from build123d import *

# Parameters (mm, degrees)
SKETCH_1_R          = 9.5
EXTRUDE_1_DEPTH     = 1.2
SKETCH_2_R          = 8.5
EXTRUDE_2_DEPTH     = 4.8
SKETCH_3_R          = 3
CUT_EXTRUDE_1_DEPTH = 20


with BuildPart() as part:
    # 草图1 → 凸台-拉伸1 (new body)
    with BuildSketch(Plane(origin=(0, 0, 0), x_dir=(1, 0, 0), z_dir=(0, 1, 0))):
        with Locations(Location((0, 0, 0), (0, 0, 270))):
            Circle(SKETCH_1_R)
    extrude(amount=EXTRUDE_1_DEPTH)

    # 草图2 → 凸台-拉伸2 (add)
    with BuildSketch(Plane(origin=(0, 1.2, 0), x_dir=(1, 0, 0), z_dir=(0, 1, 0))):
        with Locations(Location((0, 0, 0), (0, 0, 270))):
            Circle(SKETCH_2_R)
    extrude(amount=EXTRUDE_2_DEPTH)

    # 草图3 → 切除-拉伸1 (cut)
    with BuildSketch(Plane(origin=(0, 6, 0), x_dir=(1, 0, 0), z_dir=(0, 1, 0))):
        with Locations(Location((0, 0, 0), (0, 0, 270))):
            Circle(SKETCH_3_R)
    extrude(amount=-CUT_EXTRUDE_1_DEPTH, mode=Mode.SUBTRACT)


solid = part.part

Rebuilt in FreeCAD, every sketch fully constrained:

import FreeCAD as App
import Part
import Sketcher

V = App.Vector
Q = App.Units.Quantity

doc = App.newDocument("Part")
body = doc.addObject("PartDesign::Body", "Body")

# Sketch on XZ plane
sketch1 = body.newObject("Sketcher::SketchObject", "Sketch")
sketch1.AttachmentSupport = (doc.getObject("XZ_Plane"), [""])
sketch1.MapMode = "FlatFace"
sketch1.addGeometry(Part.Circle(V(0, 0, 0), V(0, 0, 1), 9.5), False)
sketch1.addConstraint([
    Sketcher.Constraint("Coincident", 0, 3, -1, 1),
    Sketcher.Constraint("Diameter", 0, Q("19 mm")),
])
pad1 = body.newObject("PartDesign::Pad", "Pad")
pad1.Profile = sketch1
pad1.Length = 1.2
pad1.Reversed = True

# Sketch on XZ plane
sketch2 = body.newObject("Sketcher::SketchObject", "Sketch001")
sketch2.AttachmentSupport = (doc.getObject("XZ_Plane"), [""])
sketch2.MapMode = "FlatFace"
sketch2.AttachmentOffset = App.Placement(V(0, 0, -1.2), App.Rotation())
sketch2.addGeometry(Part.Circle(V(0, 0, 0), V(0, 0, 1), 8.5), False)
sketch2.addConstraint([
    Sketcher.Constraint("Coincident", 0, 3, -1, 1),
    Sketcher.Constraint("Diameter", 0, Q("17 mm")),
])
pad2 = body.newObject("PartDesign::Pad", "Pad001")
pad2.Profile = sketch2
pad2.Length = 4.8
pad2.Reversed = True

# Sketch on XZ plane
sketch3 = body.newObject("Sketcher::SketchObject", "Sketch002")
sketch3.AttachmentSupport = (doc.getObject("XZ_Plane"), [""])
sketch3.MapMode = "FlatFace"
sketch3.AttachmentOffset = App.Placement(V(0, 0, -6), App.Rotation())
sketch3.addGeometry(Part.Circle(V(0, 0, 0), V(0, 0, 1), 3), False)
sketch3.addConstraint([
    Sketcher.Constraint("Coincident", 0, 3, -1, 1),
    Sketcher.Constraint("Diameter", 0, Q("6 mm")),
])
pocket1 = body.newObject("PartDesign::Pocket", "Pocket")
pocket1.Profile = sketch3
pocket1.Length = 20
pocket1.Reversed = True

doc.recompute()
